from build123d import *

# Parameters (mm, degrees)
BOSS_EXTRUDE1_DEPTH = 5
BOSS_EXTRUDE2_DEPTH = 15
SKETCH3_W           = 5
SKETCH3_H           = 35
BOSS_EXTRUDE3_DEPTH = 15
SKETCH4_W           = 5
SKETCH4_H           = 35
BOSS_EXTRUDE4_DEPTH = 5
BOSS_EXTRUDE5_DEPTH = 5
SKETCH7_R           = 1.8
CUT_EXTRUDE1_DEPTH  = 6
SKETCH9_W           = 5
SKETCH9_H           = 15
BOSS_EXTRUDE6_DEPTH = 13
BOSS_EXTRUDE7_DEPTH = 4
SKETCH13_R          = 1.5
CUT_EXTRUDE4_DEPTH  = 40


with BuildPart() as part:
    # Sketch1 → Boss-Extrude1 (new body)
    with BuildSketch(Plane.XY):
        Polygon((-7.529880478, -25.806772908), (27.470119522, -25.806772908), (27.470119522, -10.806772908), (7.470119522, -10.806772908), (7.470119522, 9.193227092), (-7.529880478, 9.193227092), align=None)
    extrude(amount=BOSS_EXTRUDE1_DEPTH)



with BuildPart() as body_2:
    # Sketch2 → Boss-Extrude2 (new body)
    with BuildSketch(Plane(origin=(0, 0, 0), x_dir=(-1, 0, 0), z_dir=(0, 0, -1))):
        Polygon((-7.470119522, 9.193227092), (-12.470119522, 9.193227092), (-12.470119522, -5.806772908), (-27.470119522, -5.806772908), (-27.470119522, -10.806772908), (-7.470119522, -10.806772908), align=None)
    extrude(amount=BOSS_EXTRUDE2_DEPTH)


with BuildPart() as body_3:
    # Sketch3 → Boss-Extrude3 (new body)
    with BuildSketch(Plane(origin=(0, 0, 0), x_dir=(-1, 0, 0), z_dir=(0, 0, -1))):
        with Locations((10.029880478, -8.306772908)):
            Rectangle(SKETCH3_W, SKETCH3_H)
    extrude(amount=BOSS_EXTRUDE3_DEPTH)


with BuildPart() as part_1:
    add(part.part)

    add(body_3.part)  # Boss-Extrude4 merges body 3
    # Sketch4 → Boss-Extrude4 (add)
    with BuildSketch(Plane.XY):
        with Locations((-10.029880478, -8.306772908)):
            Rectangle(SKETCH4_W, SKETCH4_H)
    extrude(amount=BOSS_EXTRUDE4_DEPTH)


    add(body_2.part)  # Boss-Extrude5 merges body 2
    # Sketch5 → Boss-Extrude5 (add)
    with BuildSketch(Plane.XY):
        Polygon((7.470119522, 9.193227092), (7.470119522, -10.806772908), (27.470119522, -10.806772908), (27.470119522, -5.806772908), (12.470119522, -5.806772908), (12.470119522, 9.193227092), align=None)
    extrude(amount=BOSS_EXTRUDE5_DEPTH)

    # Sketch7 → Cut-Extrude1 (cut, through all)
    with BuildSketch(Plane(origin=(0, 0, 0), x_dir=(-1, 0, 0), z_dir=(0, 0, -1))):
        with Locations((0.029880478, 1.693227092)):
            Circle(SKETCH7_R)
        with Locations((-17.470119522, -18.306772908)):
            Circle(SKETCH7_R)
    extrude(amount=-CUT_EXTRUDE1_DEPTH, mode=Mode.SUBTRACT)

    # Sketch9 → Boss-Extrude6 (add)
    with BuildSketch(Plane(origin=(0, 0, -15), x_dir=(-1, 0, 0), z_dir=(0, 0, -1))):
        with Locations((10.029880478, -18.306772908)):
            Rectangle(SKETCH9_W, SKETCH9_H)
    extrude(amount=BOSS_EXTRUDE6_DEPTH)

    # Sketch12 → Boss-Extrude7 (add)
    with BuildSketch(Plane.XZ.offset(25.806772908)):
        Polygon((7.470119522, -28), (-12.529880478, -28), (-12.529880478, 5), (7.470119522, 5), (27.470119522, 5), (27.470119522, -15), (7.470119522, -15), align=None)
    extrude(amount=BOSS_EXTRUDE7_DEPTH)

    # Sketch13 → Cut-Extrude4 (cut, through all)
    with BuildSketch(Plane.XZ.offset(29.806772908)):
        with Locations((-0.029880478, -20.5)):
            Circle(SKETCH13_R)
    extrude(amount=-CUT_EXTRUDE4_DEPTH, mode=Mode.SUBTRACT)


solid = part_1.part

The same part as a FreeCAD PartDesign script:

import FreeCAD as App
import Part
import Sketcher
Q = App.Units.Quantity


def add_polygon(sketch, points):
    """Adds a closed chain of lines whose ends are joined by coincident constraints."""
    first, n = sketch.GeometryCount, len(points)
    for a, b in zip(points, points[1:] + points[:1]):
        sketch.addGeometry(Part.LineSegment(App.Vector(*a, 0), App.Vector(*b, 0)), False)
    for i in range(n):
        sketch.addConstraint(Sketcher.Constraint("Coincident", first + i, 2, first + (i + 1) % n, 1))

doc = App.newDocument("Part")
body = doc.addObject("PartDesign::Body", "Body")

# Sketch on XY plane
sketch1 = body.newObject("Sketcher::SketchObject", "Sketch")
sketch1.AttachmentSupport = (doc.getObject("XY_Plane"), [""])
sketch1.MapMode = "FlatFace"
add_polygon(sketch1, [(-8, -26), (27, -26), (27, -11), (7, -11), (7, 9), (-8, 9)])  # lines 0-5
sketch1.addConstraint(Sketcher.Constraint("Horizontal", 0))
sketch1.addConstraint(Sketcher.Constraint("Vertical", 1))
sketch1.addConstraint(Sketcher.Constraint("Horizontal", 2))
sketch1.addConstraint(Sketcher.Constraint("Vertical", 3))
sketch1.addConstraint(Sketcher.Constraint("Horizontal", 4))
sketch1.addConstraint(Sketcher.Constraint("Vertical", 5))
sketch1.addConstraint(Sketcher.Constraint("Equal", 4, 1))
sketch1.addConstraint(Sketcher.Constraint("Equal", 2, 3))
sketch1.addConstraint(Sketcher.Constraint("DistanceX", 0, 1, 0, 2, Q("35 mm")))
sketch1.addConstraint(Sketcher.Constraint("DistanceX", 2, 2, 2, 1, Q("20 mm")))
sketch1.addConstraint(Sketcher.Constraint("DistanceX", -1, 1, 0, 2, Q("27.47012 mm")))
sketch1.addConstraint(Sketcher.Constraint("DistanceY", 0, 2, -1, 1, Q("25.806773 mm")))
pad1 = body.newObject("PartDesign::Pad", "Pad")
pad1.Profile = sketch1
pad1.Length = 5
body2 = doc.addObject("PartDesign::Body", "Body001")

# Sketch on XY plane
sketch2 = body2.newObject("Sketcher::SketchObject", "Sketch001")
sketch2.AttachmentSupport = (doc.getObject("XY_Plane001"), [""])
sketch2.MapMode = "FlatFace"
add_polygon(sketch2, [(7.5, 9.2), (12.5, 9.2), (12.5, -5.8), (27.5, -5.8), (27.5, -10.8), (7.5, -10.8)])  # lines 0-5
sketch2.addConstraint(Sketcher.Constraint("Horizontal", 0))
sketch2.addConstraint(Sketcher.Constraint("Vertical", 1))
sketch2.addConstraint(Sketcher.Constraint("Horizontal", 2))
sketch2.addConstraint(Sketcher.Constraint("Vertical", 3))
sketch2.addConstraint(Sketcher.Constraint("Horizontal", 4))
sketch2.addConstraint(Sketcher.Constraint("Vertical", 5))
sketch2.addConstraint(Sketcher.Constraint("Equal", 2, 1))
sketch2.addConstraint(Sketcher.Constraint("Equal", 0, 3))
sketch2.addConstraint(Sketcher.Constraint("DistanceX", 0, 1, 0, 2, Q("5 mm")))
sketch2.addConstraint(Sketcher.Constraint("DistanceX", 2, 1, 2, 2, Q("15 mm")))
sketch2.addConstraint(Sketcher.Constraint("DistanceX", -1, 1, 0, 2, Q("12.47012 mm")))
sketch2.addConstraint(Sketcher.Constraint("DistanceY", -1, 1, 0, 2, Q("9.193227 mm")))
pad2 = body2.newObject("PartDesign::Pad", "Pad001")
pad2.Profile = sketch2
pad2.Length = 15
pad2.Reversed = True
body3 = doc.addObject("PartDesign::Body", "Body002")

# Sketch on XY plane
sketch3 = body3.newObject("Sketcher::SketchObject", "Sketch002")
sketch3.AttachmentSupport = (doc.getObject("XY_Plane002"), [""])
sketch3.MapMode = "FlatFace"
add_polygon(sketch3, [(-8, 9), (-8, -26), (-13, -26), (-13, 9)])  # lines 0-3
sketch3.addConstraint(Sketcher.Constraint("Vertical", 0))
sketch3.addConstraint(Sketcher.Constraint("Horizontal", 1))
sketch3.addConstraint(Sketcher.Constraint("Vertical", 2))
sketch3.addConstraint(Sketcher.Constraint("Horizontal", 3))
sketch3.addConstraint(Sketcher.Constraint("DistanceX", 1, 2, 1, 1, Q("5 mm")))
sketch3.addConstraint(Sketcher.Constraint("DistanceY", 0, 2, 0, 1, Q("35 mm")))
sketch3.addConstraint(Sketcher.Constraint("DistanceX", 0, 2, -1, 1, Q("7.52988 mm")))
sketch3.addConstraint(Sketcher.Constraint("DistanceY", 0, 2, -1, 1, Q("25.806773 mm")))
pad3 = body3.newObject("PartDesign::Pad", "Pad002")
pad3.Profile = sketch3
pad3.Length = 15
pad3.Reversed = True
body.AllowCompound = True
doc.recompute()

boolean = body.newObject("PartDesign::Boolean", "Boolean")
boolean.Type = "Fuse"
boolean.addObjects([body3])

# Sketch on XY plane
sketch4 = body.newObject("Sketcher::SketchObject", "Sketch003")
sketch4.AttachmentSupport = (doc.getObject("XY_Plane"), [""])
sketch4.MapMode = "FlatFace"
add_polygon(sketch4, [(-13, 9), (-13, -26), (-8, -26), (-8, 9)])  # lines 0-3
sketch4.addConstraint(Sketcher.Constraint("Vertical", 0))
sketch4.addConstraint(Sketcher.Constraint("Horizontal", 1))
sketch4.addConstraint(Sketcher.Constraint("Vertical", 2))
sketch4.addConstraint(Sketcher.Constraint("Horizontal", 3))
sketch4.addConstraint(Sketcher.Constraint("DistanceX", 1, 1, 1, 2, Q("5 mm")))
sketch4.addConstraint(Sketcher.Constraint("DistanceY", 0, 2, 0, 1, Q("35 mm")))
sketch4.addConstraint(Sketcher.Constraint("DistanceX", 0, 2, -1, 1, Q("12.52988 mm")))
sketch4.addConstraint(Sketcher.Constraint("DistanceY", 0, 2, -1, 1, Q("25.806773 mm")))
pad4 = body.newObject("PartDesign::Pad", "Pad003")
pad4.Profile = sketch4
pad4.Length = 5
doc.recompute()

boolean2 = body.newObject("PartDesign::Boolean", "Boolean001")
boolean2.Type = "Fuse"
boolean2.addObjects([body2])

# Sketch on XY plane
sketch5 = body.newObject("Sketcher::SketchObject", "Sketch004")
sketch5.AttachmentSupport = (doc.getObject("XY_Plane"), [""])
sketch5.MapMode = "FlatFace"
add_polygon(sketch5, [(7.5, 9.2), (7.5, -10.8), (27.5, -10.8), (27.5, -5.8), (12.5, -5.8), (12.5, 9.2)])  # lines 0-5
sketch5.addConstraint(Sketcher.Constraint("Vertical", 0))
sketch5.addConstraint(Sketcher.Constraint("Horizontal", 1))
sketch5.addConstraint(Sketcher.Constraint("Vertical", 2))
sketch5.addConstraint(Sketcher.Constraint("Horizontal", 3))
sketch5.addConstraint(Sketcher.Constraint("Vertical", 4))
sketch5.addConstraint(Sketcher.Constraint("Horizontal", 5))
sketch5.addConstraint(Sketcher.Constraint("Equal", 1, 0))
sketch5.addConstraint(Sketcher.Constraint("Equal", 5, 2))
sketch5.addConstraint(Sketcher.Constraint("DistanceX", 1, 1, 1, 2, Q("20 mm")))
sketch5.addConstraint(Sketcher.Constraint("DistanceX", 3, 2, 3, 1, Q("15 mm")))
sketch5.addConstraint(Sketcher.Constraint("DistanceX", -1, 1, 0, 2, Q("7.47012 mm")))
sketch5.addConstraint(Sketcher.Constraint("DistanceY", 0, 2, -1, 1, Q("10.806773 mm")))
pad5 = body.newObject("PartDesign::Pad", "Pad004")
pad5.Profile = sketch5
pad5.Length = 5

# Sketch on XY plane
sketch6 = body.newObject("Sketcher::SketchObject", "Sketch005")
sketch6.AttachmentSupport = (doc.getObject("XY_Plane"), [""])
sketch6.MapMode = "FlatFace"
sketch6.addGeometry(Part.Circle(App.Vector(0, 1.7, 0), App.Vector(0, 0, 1), 1.8), False)
sketch6.addGeometry(Part.Circle(App.Vector(17.5, -18.3, 0), App.Vector(0, 0, 1), 1.8), False)
sketch6.addConstraint(Sketcher.Constraint("Equal", 0, 1))
sketch6.addConstraint(Sketcher.Constraint("Diameter", 0, Q("3.6 mm")))
sketch6.addConstraint(Sketcher.Constraint("DistanceY", 1, 3, 0, 3, Q("20 mm")))
sketch6.addConstraint(Sketcher.Constraint("DistanceX", 0, 3, 1, 3, Q("17.5 mm")))
sketch6.addConstraint(Sketcher.Constraint("DistanceX", 0, 3, -1, 1, Q("0.02988 mm")))
sketch6.addConstraint(Sketcher.Constraint("DistanceY", -1, 1, 0, 3, Q("1.693227 mm")))
pocket1 = body.newObject("PartDesign::Pocket", "Pocket")
pocket1.Profile = sketch6
pocket1.Type = "ThroughAll"
pocket1.Reversed = True

# Sketch on XY plane
sketch7 = body.newObject("Sketcher::SketchObject", "Sketch006")
sketch7.AttachmentSupport = (doc.getObject("XY_Plane"), [""])
sketch7.MapMode = "FlatFace"
sketch7.AttachmentOffset = App.Placement(App.Vector(0, 0, -15), App.Rotation())
add_polygon(sketch7, [(-8, -11), (-8, -26), (-13, -26), (-13, -11)])  # lines 0-3
sketch7.addConstraint(Sketcher.Constraint("Vertical", 0))
sketch7.addConstraint(Sketcher.Constraint("Horizontal", 1))
sketch7.addConstraint(Sketcher.Constraint("Vertical", 2))
sketch7.addConstraint(Sketcher.Constraint("Horizontal", 3))
sketch7.addConstraint(Sketcher.Constraint("DistanceX", 1, 2, 1, 1, Q("5 mm")))
sketch7.addConstraint(Sketcher.Constraint("DistanceY", 0, 2, 0, 1, Q("15 mm")))
sketch7.addConstraint(Sketcher.Constraint("DistanceX", 0, 2, -1, 1, Q("7.52988 mm")))
sketch7.addConstraint(Sketcher.Constraint("DistanceY", 0, 2, -1, 1, Q("25.806773 mm")))
pad6 = body.newObject("PartDesign::Pad", "Pad005")
pad6.Profile = sketch7
pad6.Length = 13
pad6.Reversed = True

# Sketch on XZ plane
sketch8 = body.newObject("Sketcher::SketchObject", "Sketch007")
sketch8.AttachmentSupport = (doc.getObject("XZ_Plane"), [""])
sketch8.MapMode = "FlatFace"
sketch8.AttachmentOffset = App.Placement(App.Vector(0, 0, 25.806773), App.Rotation())
add_polygon(sketch8, [(-13, -28), (7, -28), (7, -15), (27, -15), (27, 5), (-13, 5)])  # lines 0-5
sketch8.addConstraint(Sketcher.Constraint("Horizontal", 0))
sketch8.addConstraint(Sketcher.Constraint("Vertical", 1))
sketch8.addConstraint(Sketcher.Constraint("Horizontal", 2))
sketch8.addConstraint(Sketcher.Constraint("Vertical", 3))
sketch8.addConstraint(Sketcher.Constraint("Horizontal", 4))
sketch8.addConstraint(Sketcher.Constraint("Vertical", 5))
sketch8.addConstraint(Sketcher.Constraint("Equal", 0, 2))
sketch8.addConstraint(Sketcher.Constraint("Equal", 2, 3))
sketch8.addConstraint(Sketcher.Constraint("DistanceX", 0, 1, 0, 2, Q("20 mm")))
sketch8.addConstraint(Sketcher.Constraint("DistanceY", 1, 1, 1, 2, Q("13 mm")))
sketch8.addConstraint(Sketcher.Constraint("DistanceY", 0, 2, -1, 1, Q("28 mm")))
sketch8.addConstraint(Sketcher.Constraint("DistanceX", -1, 1, 0, 2, Q("7.47012 mm")))
pad7 = body.newObject("PartDesign::Pad", "Pad006")
pad7.Profile = sketch8
pad7.Length = 4

# Sketch on XZ plane
sketch9 = body.newObject("Sketcher::SketchObject", "Sketch008")
sketch9.AttachmentSupport = (doc.getObject("XZ_Plane"), [""])
sketch9.MapMode = "FlatFace"
sketch9.AttachmentOffset = App.Placement(App.Vector(0, 0, 29.806773), App.Rotation())
sketch9.addGeometry(Part.Circle(App.Vector(0, -20.5, 0), App.Vector(0, 0, 1), 1.5), False)
sketch9.addConstraint(Sketcher.Constraint("Diameter", 0, Q("3 mm")))
sketch9.addConstraint(Sketcher.Constraint("DistanceY", 0, 3, -1, 1, Q("20.5 mm")))
sketch9.addConstraint(Sketcher.Constraint("DistanceX", 0, 3, -1, 1, Q("0.02988 mm")))
pocket2 = body.newObject("PartDesign::Pocket", "Pocket001")
pocket2.Profile = sketch9
pocket2.Type = "ThroughAll"

doc.recompute()
